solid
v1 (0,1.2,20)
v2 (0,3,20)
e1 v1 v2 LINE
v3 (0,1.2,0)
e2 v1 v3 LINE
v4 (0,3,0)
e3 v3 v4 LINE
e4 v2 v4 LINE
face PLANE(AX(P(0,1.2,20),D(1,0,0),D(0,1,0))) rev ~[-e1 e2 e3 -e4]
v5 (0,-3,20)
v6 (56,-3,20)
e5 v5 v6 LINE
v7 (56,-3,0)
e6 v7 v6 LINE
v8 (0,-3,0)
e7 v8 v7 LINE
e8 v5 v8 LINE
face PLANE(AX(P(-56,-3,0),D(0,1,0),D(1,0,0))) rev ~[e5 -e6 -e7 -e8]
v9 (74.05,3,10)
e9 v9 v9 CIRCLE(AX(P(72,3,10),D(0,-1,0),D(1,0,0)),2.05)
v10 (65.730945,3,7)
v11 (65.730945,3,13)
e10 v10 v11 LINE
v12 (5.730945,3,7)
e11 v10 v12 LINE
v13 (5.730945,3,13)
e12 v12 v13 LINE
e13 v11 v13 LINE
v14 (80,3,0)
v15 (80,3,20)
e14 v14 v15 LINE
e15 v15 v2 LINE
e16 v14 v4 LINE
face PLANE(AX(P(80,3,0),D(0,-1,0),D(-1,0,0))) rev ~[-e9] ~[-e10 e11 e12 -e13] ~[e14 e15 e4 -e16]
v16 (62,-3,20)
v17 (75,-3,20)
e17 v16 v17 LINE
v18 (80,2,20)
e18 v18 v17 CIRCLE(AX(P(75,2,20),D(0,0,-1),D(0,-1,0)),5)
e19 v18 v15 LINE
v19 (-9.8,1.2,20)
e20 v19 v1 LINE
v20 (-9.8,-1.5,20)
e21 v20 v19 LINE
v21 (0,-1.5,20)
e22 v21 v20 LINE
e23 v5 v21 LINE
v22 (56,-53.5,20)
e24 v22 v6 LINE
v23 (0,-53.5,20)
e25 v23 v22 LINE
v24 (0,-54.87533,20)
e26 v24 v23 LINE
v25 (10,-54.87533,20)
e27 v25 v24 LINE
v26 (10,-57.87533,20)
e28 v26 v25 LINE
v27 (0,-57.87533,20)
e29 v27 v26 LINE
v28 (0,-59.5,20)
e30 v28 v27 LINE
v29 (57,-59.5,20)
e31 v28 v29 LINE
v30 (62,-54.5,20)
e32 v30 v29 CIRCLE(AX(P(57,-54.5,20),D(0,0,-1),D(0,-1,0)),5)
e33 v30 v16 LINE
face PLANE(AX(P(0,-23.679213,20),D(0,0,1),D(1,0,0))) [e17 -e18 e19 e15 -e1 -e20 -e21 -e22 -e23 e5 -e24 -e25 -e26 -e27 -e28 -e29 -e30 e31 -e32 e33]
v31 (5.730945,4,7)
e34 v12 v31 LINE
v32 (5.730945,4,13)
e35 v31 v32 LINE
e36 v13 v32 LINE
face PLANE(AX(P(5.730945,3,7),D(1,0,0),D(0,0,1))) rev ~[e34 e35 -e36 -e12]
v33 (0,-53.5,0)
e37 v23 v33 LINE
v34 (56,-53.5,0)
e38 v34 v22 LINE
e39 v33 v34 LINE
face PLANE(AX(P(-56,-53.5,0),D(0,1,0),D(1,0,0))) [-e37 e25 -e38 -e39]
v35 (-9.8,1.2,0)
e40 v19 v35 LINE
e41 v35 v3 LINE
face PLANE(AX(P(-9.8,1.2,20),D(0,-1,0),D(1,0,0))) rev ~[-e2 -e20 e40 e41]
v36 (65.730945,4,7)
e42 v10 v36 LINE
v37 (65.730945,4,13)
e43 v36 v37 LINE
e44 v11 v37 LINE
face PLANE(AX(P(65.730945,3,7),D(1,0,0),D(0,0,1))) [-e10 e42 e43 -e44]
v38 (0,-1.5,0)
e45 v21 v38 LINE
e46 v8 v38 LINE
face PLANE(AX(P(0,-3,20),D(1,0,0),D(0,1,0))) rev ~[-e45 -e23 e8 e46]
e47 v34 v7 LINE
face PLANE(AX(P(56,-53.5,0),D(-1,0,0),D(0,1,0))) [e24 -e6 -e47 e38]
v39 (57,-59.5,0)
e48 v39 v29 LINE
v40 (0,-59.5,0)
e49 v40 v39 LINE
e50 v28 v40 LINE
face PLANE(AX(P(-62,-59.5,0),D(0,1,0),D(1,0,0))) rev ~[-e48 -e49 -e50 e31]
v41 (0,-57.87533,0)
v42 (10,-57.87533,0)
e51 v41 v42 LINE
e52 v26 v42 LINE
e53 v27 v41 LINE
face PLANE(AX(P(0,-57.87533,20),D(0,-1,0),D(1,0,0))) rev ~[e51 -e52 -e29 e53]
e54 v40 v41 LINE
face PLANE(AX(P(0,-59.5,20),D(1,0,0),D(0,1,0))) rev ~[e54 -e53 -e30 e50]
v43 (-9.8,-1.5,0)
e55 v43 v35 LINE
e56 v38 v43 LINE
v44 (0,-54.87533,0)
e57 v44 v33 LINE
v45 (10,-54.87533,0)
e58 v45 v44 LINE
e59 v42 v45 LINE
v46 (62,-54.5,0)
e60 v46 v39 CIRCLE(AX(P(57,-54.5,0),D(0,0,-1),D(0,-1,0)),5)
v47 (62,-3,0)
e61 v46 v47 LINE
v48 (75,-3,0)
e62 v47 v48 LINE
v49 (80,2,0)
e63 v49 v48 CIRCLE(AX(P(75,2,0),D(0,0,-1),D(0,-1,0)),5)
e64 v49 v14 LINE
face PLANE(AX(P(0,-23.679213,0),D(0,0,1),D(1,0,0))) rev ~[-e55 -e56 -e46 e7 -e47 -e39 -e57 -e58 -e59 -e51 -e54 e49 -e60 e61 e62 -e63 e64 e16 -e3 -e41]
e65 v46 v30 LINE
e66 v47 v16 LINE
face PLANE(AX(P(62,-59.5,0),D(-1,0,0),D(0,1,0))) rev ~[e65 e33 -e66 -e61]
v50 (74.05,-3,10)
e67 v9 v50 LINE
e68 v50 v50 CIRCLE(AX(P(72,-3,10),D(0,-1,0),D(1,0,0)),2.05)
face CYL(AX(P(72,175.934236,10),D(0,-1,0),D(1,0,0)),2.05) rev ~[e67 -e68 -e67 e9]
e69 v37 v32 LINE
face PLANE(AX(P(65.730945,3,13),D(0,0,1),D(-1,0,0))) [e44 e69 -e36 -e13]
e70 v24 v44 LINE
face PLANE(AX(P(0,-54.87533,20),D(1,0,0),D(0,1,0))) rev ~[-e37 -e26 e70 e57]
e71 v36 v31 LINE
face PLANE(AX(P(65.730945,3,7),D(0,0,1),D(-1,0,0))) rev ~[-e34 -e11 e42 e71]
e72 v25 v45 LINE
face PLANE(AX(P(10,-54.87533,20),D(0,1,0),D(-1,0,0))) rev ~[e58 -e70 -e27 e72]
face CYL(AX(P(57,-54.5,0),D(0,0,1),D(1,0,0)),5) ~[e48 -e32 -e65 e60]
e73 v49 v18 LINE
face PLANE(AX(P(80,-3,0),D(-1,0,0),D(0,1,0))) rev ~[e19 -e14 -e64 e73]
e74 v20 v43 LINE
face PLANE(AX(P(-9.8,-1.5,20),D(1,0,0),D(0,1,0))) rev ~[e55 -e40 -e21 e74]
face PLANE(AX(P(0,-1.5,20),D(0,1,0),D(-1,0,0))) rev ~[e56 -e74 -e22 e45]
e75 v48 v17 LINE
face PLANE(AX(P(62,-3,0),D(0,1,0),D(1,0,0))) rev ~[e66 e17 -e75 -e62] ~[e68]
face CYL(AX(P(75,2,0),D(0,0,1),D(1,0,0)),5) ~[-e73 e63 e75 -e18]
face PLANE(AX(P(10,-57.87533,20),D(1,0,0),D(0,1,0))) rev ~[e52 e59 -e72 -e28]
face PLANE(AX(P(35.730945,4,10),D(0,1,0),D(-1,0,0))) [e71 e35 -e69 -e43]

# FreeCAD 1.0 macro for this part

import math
import FreeCAD as App
import Part
import Sketcher
from FreeCAD import Vector
Q = App.Units.Quantity


def edges_at(feature, points):
    """Names of the edges that pass closest to the given points."""
    edges = feature.Shape.Edges
    near = lambda p: min(range(len(edges)), key=lambda i: edges[i].distToShape(Part.Vertex(*p))[0])
    return sorted({f"Edge{near(p) + 1}" for p in points})


def add_polygon(sketch, points):
    """Adds a closed chain of lines whose ends are joined by coincident constraints."""
    first, n = sketch.GeometryCount, len(points)
    for a, b in zip(points, points[1:] + points[:1]):
        sketch.addGeometry(Part.LineSegment(App.Vector(*a, 0), App.Vector(*b, 0)), False)
    for i in range(n):
        sketch.addConstraint(Sketcher.Constraint("Coincident", first + i, 2, first + (i + 1) % n, 1))

doc = App.newDocument("Part")
params = doc.addObject("Spreadsheet::Sheet", "Params")
for row, (alias, value) in enumerate([
    ("sketch1_width", "160 mm"),
    ("sketch1_width2", "18 mm"),
    ("sketch1_width3", "112 mm"),
    ("sketch1_height", "6 mm"),
    ("sketch1_height2", "56.5 mm"),
    ("pad1_length", "20 mm"),
    ("fillet_radius", "5 mm"),
    ("sketch2_diameter", "4.1 mm"),
    ("hole_diameter", "4.1 mm"),
    ("sketch3_radius", "5 mm"),
    ("sketch3_width", "10 mm"),
    ("sketch3_width2", "56 mm"),
    ("sketch3_width3", "80 mm"),
    ("sketch3_width4", "13 mm"),
    ("sketch4_width", "60 mm"),
    ("sketch4_height", "6 mm"),
    ("pad2_length", "1 mm"),
], start=1):
    params.set(f"A{row}", alias)
    params.set(f"B{row}", "=" + value)
    params.setAlias(f"B{row}", alias)

body = doc.addObject("PartDesign::Body", "Body")

sketch1 = doc.addObject("Sketcher::SketchObject", "Sketch")
body.addObject(sketch1)
sketch1.AttachmentSupport = (doc.XY_Plane, [""])
sketch1.MapMode = "FlatFace"
add_polygon(sketch1, [(80, 3), (-80, 3), (-80, -3), (-62, -3), (-62, -59.5), (62, -59.5), (62, -3), (80, -3)])
add_polygon(sketch1, [(56, -53.5), (-56, -53.5), (-56, -3), (56, -3)])
sketch1.addConstraint([
    Sketcher.Constraint("Horizontal", 0),
    Sketcher.Constraint("Vertical", 1),
    Sketcher.Constraint("Horizontal", 2),
    Sketcher.Constraint("Vertical", 3),
    Sketcher.Constraint("Horizontal", 4),
    Sketcher.Constraint("Vertical", 5),
    Sketcher.Constraint("Horizontal", 6),
    Sketcher.Constraint("Vertical", 7),
    Sketcher.Constraint("Horizontal", 8),
    Sketcher.Constraint("Vertical", 9),
    Sketcher.Constraint("Horizontal", 10),
    Sketcher.Constraint("Vertical", 11),
    Sketcher.Constraint("Symmetric", 0, 2, 6, 2, -1, 1),
    Sketcher.Constraint("Symmetric", 2, 2, 5, 2, -2),
    Sketcher.Constraint("Horizontal", 6, 2, 9, 2),
    Sketcher.Constraint("DistanceX", 0, 2, 0, 1, Q("160 mm")),
    Sketcher.Constraint("DistanceX", 2, 1, 2, 2, Q("18 mm")),
    Sketcher.Constraint("DistanceX", 8, 2, 8, 1, Q("112 mm")),
    Sketcher.Constraint("DistanceY", 1, 2, 1, 1, Q("6 mm")),
    Sketcher.Constraint("DistanceY", 3, 2, 3, 1, Q("56.5 mm")),
    Sketcher.Constraint("DistanceY", 9, 1, 9, 2, Q("50.5 mm")),
    Sketcher.Constraint("DistanceX", 8, 2, -1, 1, Q("56 mm")),
])
sketch1.setExpression("Constraints[27]", "Params.sketch1_width")
sketch1.setExpression("Constraints[28]", "Params.sketch1_width2")
sketch1.setExpression("Constraints[29]", "Params.sketch1_width3")
sketch1.setExpression("Constraints[30]", "Params.sketch1_height")
sketch1.setExpression("Constraints[31]", "Params.sketch1_height2")
pad1 = doc.addObject("PartDesign::Pad", "Pad")
body.addObject(pad1)
pad1.Profile = sketch1
pad1.setExpression("Length", "Params.pad1_length")
doc.recompute()

fillet = doc.addObject("PartDesign::Fillet", "Fillet")
body.addObject(fillet)
fillet.Base = (pad1, edges_at(pad1, [
    (62, -59.5, 10),
    (-62, -59.5, 10),
    (-80, -3, 10),
    (80, -3, 10),
]))
fillet.setExpression("Radius", "Params.fillet_radius")

sketch2 = doc.addObject("Sketcher::SketchObject", "Sketch001")
body.addObject(sketch2)
sketch2.AttachmentSupport = (doc.XZ_Plane, [""])
sketch2.MapMode = "FlatFace"
sketch2.AttachmentOffset = App.Placement(Vector(0, 0, -3), App.Rotation())
sketch2.addGeometry([
    Part.Circle(Vector(72, 10, 0), Vector(0, 0, 1), 2.05),
    Part.Circle(Vector(-72, 10, 0), Vector(0, 0, 1), 2.05),
], False)
sketch2.addConstraint([
    Sketcher.Constraint("Equal", 0, 1),
    Sketcher.Constraint("Symmetric", 0, 3, 1, 3, -2),
    Sketcher.Constraint("Diameter", 0, Q("4.1 mm")),
    Sketcher.Constraint("DistanceX", -1, 1, 0, 3, Q("72 mm")),
    Sketcher.Constraint("DistanceY", -1, 1, 0, 3, Q("10 mm")),
])
sketch2.setExpression("Constraints[2]", "Params.sketch2_diameter")
doc.recompute()
hole = doc.addObject("PartDesign::Hole", "Hole")
body.addObject(hole)
hole.Profile = sketch2
hole.ThreadType = "None"
hole.setExpression("Diameter", "Params.hole_diameter")
hole.DepthType = "ThroughAll"
hole.Reversed = True

sketch3 = doc.addObject("Sketcher::SketchObject", "Sketch002")
body.addObject(sketch3)
sketch3.AttachmentSupport = (doc.XY_Plane, [""])
sketch3.MapMode = "FlatFace"
sketch3.AttachmentOffset = App.Placement(Vector(0, 0, 20), App.Rotation())
sketch3.addGeometry([
    Part.LineSegment(Vector(10, -57.87533, 0), Vector(10, -54.87533, 0)),
    Part.LineSegment(Vector(10, -54.87533, 0), Vector(0, -54.87533, 0)),
    Part.LineSegment(Vector(0, -54.87533, 0), Vector(0, -53.5, 0)),
    Part.LineSegment(Vector(0, -53.5, 0), Vector(-56, -53.5, 0)),
    Part.LineSegment(Vector(-56, -53.5, 0), Vector(-56, -3, 0)),
    Part.LineSegment(Vector(-56, -3, 0), Vector(0, -3, 0)),
    Part.LineSegment(Vector(0, -3, 0), Vector(0, -1.5, 0)),
    Part.LineSegment(Vector(0, -1.5, 0), Vector(-9.8, -1.5, 0)),
    Part.LineSegment(Vector(-9.8, -1.5, 0), Vector(-9.8, 1.2, 0)),
    Part.LineSegment(Vector(-9.8, 1.2, 0), Vector(0, 1.2, 0)),
    Part.LineSegment(Vector(0, 1.2, 0), Vector(0, 3, 0)),
    Part.LineSegment(Vector(0, 3, 0), Vector(-80, 3, 0)),
    Part.LineSegment(Vector(-80, 3, 0), Vector(-80, 2, 0)),
    Part.ArcOfCircle(Part.Circle(Vector(-75, 2, 0), Vector(0, 0, 1), 5), math.radians(179.999996), math.radians(270.000004)),
    Part.LineSegment(Vector(-75, -3, 0), Vector(-62, -3, 0)),
    Part.LineSegment(Vector(-62, -3, 0), Vector(-62, -54.5, 0)),
    Part.ArcOfCircle(Part.Circle(Vector(-57, -54.5, 0), Vector(0, 0, 1), 5), math.radians(179.999996), math.radians(270.000004)),
    Part.LineSegment(Vector(-57, -59.5, 0), Vector(0, -59.5, 0)),
    Part.LineSegment(Vector(0, -59.5, 0), Vector(0, -57.87533, 0)),
    Part.LineSegment(Vector(0, -57.87533, 0), Vector(10, -57.87533, 0)),
], False)
sketch3.addConstraint([
    Sketcher.Constraint("Coincident", 0, 2, 1, 1),
    Sketcher.Constraint("Coincident", 1, 2, 2, 1),
    Sketcher.Constraint("Coincident", 2, 2, 3, 1),
    Sketcher.Constraint("Coincident", 3, 2, 4, 1),
    Sketcher.Constraint("Coincident", 4, 2, 5, 1),
    Sketcher.Constraint("Coincident", 5, 2, 6, 1),
    Sketcher.Constraint("Coincident", 6, 2, 7, 1),
    Sketcher.Constraint("Coincident", 7, 2, 8, 1),
    Sketcher.Constraint("Coincident", 8, 2, 9, 1),
    Sketcher.Constraint("Coincident", 9, 2, 10, 1),
    Sketcher.Constraint("Coincident", 10, 2, 11, 1),
    Sketcher.Constraint("Coincident", 11, 2, 12, 1),
    Sketcher.Constraint("Tangent", 12, 2, 13, 1),
    Sketcher.Constraint("Tangent", 13, 2, 14, 1),
    Sketcher.Constraint("Coincident", 14, 2, 15, 1),
    Sketcher.Constraint("Tangent", 15, 2, 16, 1),
    Sketcher.Constraint("Tangent", 16, 2, 17, 1),
    Sketcher.Constraint("Coincident", 17, 2, 18, 1),
    Sketcher.Constraint("Coincident", 18, 2, 19, 1),
    Sketcher.Constraint("Coincident", 19, 2, 0, 1),
    Sketcher.Constraint("Vertical", 0),
    Sketcher.Constraint("Horizontal", 1),
    Sketcher.Constraint("Vertical", 2),
    Sketcher.Constraint("Horizontal", 3),
    Sketcher.Constraint("Vertical", 4),
    Sketcher.Constraint("Horizontal", 5),
    Sketcher.Constraint("Vertical", 6),
    Sketcher.Constraint("Horizontal", 7),
    Sketcher.Constraint("Vertical", 8),
    Sketcher.Constraint("Horizontal", 9),
    Sketcher.Constraint("Vertical", 10),
    Sketcher.Constraint("Horizontal", 11),
    Sketcher.Constraint("Vertical", 12),
    Sketcher.Constraint("Horizontal", 14),
    Sketcher.Constraint("Vertical", 15),
    Sketcher.Constraint("Horizontal", 17),
    Sketcher.Constraint("Vertical", 18),
    Sketcher.Constraint("Horizontal", 19),
    Sketcher.Constraint("Equal", 13, 16),
    Sketcher.Constraint("Symmetric", 5, 2, 10, 2, -1, 1),
    Sketcher.Constraint("PointOnObject", 1, 2, -2),
    Sketcher.Constraint("PointOnObject", 5, 2, -2),
    Sketcher.Constraint("PointOnObject", 17, 2, -2),
    Sketcher.Constraint("Horizontal", 5, 2, 13, 2),
    Sketcher.Constraint("Radius", 13, Q("5 mm")),
    Sketcher.Constraint("DistanceX", 1, 2, 1, 1, Q("10 mm")),
    Sketcher.Constraint("DistanceX", 3, 2, 3, 1, Q("56 mm")),
    Sketcher.Constraint("DistanceX", 11, 2, 11, 1, Q("80 mm")),
    Sketcher.Constraint("DistanceX", 14, 1, 14, 2, Q("13 mm")),
    Sketcher.Constraint("DistanceY", 0, 1, 0, 2, Q("3 mm")),
    Sketcher.Constraint("DistanceY", 12, 2, 12, 1, Q("1 mm")),
    Sketcher.Constraint("DistanceX", 7, 2, 7, 1, Q("9.8 mm")),
    Sketcher.Constraint("DistanceY", 4, 1, 4, 2, Q("50.5 mm")),
    Sketcher.Constraint("DistanceY", 6, 1, 6, 2, Q("1.5 mm")),
    Sketcher.Constraint("DistanceY", 8, 1, 8, 2, Q("2.7 mm")),
    Sketcher.Constraint("DistanceY", 15, 2, 15, 1, Q("51.5 mm")),
    Sketcher.Constraint("DistanceY", 2, 1, 2, 2, Q("1.37533 mm")),
])
sketch3.setExpression("Constraints[44]", "Params.sketch3_radius")
sketch3.setExpression("Constraints[45]", "Params.sketch3_width")
sketch3.setExpression("Constraints[46]", "Params.sketch3_width2")
sketch3.setExpression("Constraints[47]", "Params.sketch3_width3")
sketch3.setExpression("Constraints[48]", "Params.sketch3_width4")
pocket1 = doc.addObject("PartDesign::Pocket", "Pocket")
body.addObject(pocket1)
pocket1.Profile = sketch3
pocket1.Type = "ThroughAll"

sketch4 = doc.addObject("Sketcher::SketchObject", "Sketch003")
body.addObject(sketch4)
sketch4.AttachmentSupport = (doc.XZ_Plane, [""])
sketch4.MapMode = "FlatFace"
sketch4.AttachmentOffset = App.Placement(Vector(0, 0, -3), App.Rotation())
add_polygon(sketch4, [(65.730945, 13), (65.730945, 7), (5.730945, 7), (5.730945, 13)])
sketch4.addConstraint([
    Sketcher.Constraint("Vertical", 0),
    Sketcher.Constraint("Horizontal", 1),
    Sketcher.Constraint("Vertical", 2),
    Sketcher.Constraint("Horizontal", 3),
    Sketcher.Constraint("DistanceX", 1, 2, 1, 1, Q("60 mm")),
    Sketcher.Constraint("DistanceY", 0, 2, 0, 1, Q("6 mm")),
    Sketcher.Constraint("DistanceY", -1, 1, 0, 2, Q("7 mm")),
    Sketcher.Constraint("DistanceX", -1, 1, 0, 2, Q("65.730945 mm")),
])
sketch4.setExpression("Constraints[8]", "Params.sketch4_width")
sketch4.setExpression("Constraints[9]", "Params.sketch4_height")
pad2 = doc.addObject("PartDesign::Pad", "Pad001")
body.addObject(pad2)
pad2.Profile = sketch4
pad2.setExpression("Length", "Params.pad2_length")
pad2.Reversed = True

doc.recompute()
